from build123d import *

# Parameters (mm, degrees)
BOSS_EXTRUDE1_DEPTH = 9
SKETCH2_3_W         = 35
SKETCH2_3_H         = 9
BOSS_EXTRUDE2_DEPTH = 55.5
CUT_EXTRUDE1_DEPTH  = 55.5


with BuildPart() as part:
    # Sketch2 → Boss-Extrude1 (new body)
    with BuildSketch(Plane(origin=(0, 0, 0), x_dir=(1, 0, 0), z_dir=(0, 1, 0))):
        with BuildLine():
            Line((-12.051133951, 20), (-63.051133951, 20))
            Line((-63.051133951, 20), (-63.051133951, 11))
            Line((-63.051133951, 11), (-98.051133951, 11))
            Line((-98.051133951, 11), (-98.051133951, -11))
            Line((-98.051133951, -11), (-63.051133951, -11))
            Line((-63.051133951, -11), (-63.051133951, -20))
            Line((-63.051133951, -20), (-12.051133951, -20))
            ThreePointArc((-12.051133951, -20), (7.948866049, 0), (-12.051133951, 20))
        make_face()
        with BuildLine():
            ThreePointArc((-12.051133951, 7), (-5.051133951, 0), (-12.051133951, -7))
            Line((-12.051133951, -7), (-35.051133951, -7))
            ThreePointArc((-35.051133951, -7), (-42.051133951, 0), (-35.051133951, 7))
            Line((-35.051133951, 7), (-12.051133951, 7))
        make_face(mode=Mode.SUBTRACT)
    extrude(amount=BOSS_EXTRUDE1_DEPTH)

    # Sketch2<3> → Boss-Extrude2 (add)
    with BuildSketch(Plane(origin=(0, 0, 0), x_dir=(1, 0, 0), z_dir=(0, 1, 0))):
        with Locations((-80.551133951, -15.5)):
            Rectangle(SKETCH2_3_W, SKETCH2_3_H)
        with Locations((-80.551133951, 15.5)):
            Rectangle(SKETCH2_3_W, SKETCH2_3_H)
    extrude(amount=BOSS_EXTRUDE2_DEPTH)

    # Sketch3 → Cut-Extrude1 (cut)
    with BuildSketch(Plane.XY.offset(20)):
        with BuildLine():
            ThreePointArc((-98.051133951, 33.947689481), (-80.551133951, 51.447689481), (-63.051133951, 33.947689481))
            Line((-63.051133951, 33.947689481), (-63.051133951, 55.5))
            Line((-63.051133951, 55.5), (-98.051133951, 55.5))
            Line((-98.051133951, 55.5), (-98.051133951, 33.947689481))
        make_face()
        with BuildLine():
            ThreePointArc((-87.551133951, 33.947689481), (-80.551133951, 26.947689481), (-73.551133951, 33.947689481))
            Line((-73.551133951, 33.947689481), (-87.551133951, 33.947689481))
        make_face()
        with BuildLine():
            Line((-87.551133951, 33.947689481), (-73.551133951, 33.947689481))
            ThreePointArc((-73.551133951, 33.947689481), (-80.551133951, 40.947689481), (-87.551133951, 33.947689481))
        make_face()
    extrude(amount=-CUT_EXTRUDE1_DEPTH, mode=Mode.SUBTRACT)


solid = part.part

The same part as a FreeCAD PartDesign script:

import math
import FreeCAD as App
import Part
import Sketcher
from FreeCAD import Vector
Q = App.Units.Quantity


def add_polygon(sketch, points):
    """Adds a closed chain of lines whose ends are joined by coincident constraints."""
    first, n = sketch.GeometryCount, len(points)
    for a, b in zip(points, points[1:] + points[:1]):
        sketch.addGeometry(Part.LineSegment(App.Vector(*a, 0), App.Vector(*b, 0)), False)
    for i in range(n):
        sketch.addConstraint(Sketcher.Constraint("Coincident", first + i, 2, first + (i + 1) % n, 1))

doc = App.newDocument("Part")
body = doc.addObject("PartDesign::Body", "Body")

# Sketch on XZ plane
sketch1 = body.newObject("Sketcher::SketchObject", "Sketch")
sketch1.AttachmentSupport = (doc.getObject("XZ_Plane"), [""])
sketch1.MapMode = "FlatFace"
sketch1.addGeometry(Part.LineSegment(Vector(-12.051134, -20, 0), Vector(-63.051134, -20, 0)), False)
sketch1.addGeometry(Part.LineSegment(Vector(-63.051134, -20, 0), Vector(-63.051134, -11, 0)), False)
sketch1.addGeometry(Part.LineSegment(Vector(-63.051134, -11, 0), Vector(-98.051134, -11, 0)), False)
sketch1.addGeometry(Part.LineSegment(Vector(-98.051134, -11, 0), Vector(-98.051134, 11, 0)), False)
sketch1.addGeometry(Part.LineSegment(Vector(-98.051134, 11, 0), Vector(-63.051134, 11, 0)), False)
sketch1.addGeometry(Part.LineSegment(Vector(-63.051134, 11, 0), Vector(-63.051134, 20, 0)), False)
sketch1.addGeometry(Part.LineSegment(Vector(-63.051134, 20, 0), Vector(-12.051134, 20, 0)), False)
sketch1.addGeometry(Part.ArcOfCircle(Part.Circle(Vector(-12.051134, 0, 0), Vector(0, 0, 1), 20), math.radians(-90), math.radians(90)), False)
sketch1.addGeometry(Part.LineSegment(Vector(-35.051134, -7, 0), Vector(-12.051134, -7, 0)), False)
sketch1.addGeometry(Part.ArcOfCircle(Part.Circle(Vector(-12.051134, 0, 0), Vector(0, 0, 1), 7), math.radians(-90), math.radians(90)), False)
sketch1.addGeometry(Part.LineSegment(Vector(-12.051134, 7, 0), Vector(-35.051134, 7, 0)), False)
sketch1.addGeometry(Part.ArcOfCircle(Part.Circle(Vector(-35.051134, 0, 0), Vector(0, 0, 1), 7), math.radians(90), math.radians(270)), False)
sketch1.addConstraint(Sketcher.Constraint("Coincident", 0, 2, 1, 1))
sketch1.addConstraint(Sketcher.Constraint("Coincident", 1, 2, 2, 1))
sketch1.addConstraint(Sketcher.Constraint("Coincident", 2, 2, 3, 1))
sketch1.addConstraint(Sketcher.Constraint("Coincident", 3, 2, 4, 1))
sketch1.addConstraint(Sketcher.Constraint("Coincident", 4, 2, 5, 1))
sketch1.addConstraint(Sketcher.Constraint("Coincident", 5, 2, 6, 1))
sketch1.addConstraint(Sketcher.Constraint("Tangent", 6, 2, 7, 2))
sketch1.addConstraint(Sketcher.Constraint("Tangent", 7, 1, 0, 1))
sketch1.addConstraint(Sketcher.Constraint("Tangent", 8, 2, 9, 1))
sketch1.addConstraint(Sketcher.Constraint("Tangent", 9, 2, 10, 1))
sketch1.addConstraint(Sketcher.Constraint("Tangent", 10, 2, 11, 1))
sketch1.addConstraint(Sketcher.Constraint("Tangent", 11, 2, 8, 1))
sketch1.addConstraint(Sketcher.Constraint("Horizontal", 0))
sketch1.addConstraint(Sketcher.Constraint("Vertical", 1))
sketch1.addConstraint(Sketcher.Constraint("Horizontal", 2))
sketch1.addConstraint(Sketcher.Constraint("Vertical", 3))
sketch1.addConstraint(Sketcher.Constraint("Horizontal", 4))
sketch1.addConstraint(Sketcher.Constraint("Vertical", 5))
sketch1.addConstraint(Sketcher.Constraint("Horizontal", 6))
sketch1.addConstraint(Sketcher.Constraint("Horizontal", 8))
sketch1.addConstraint(Sketcher.Constraint("Horizontal", 10))
sketch1.addConstraint(Sketcher.Constraint("Coincident", 9, 3, 7, 3))
sketch1.addConstraint(Sketcher.Constraint("Symmetric", 1, 2, 4, 2, -1))
sketch1.addConstraint(Sketcher.Constraint("PointOnObject", 7, 3, -1))
sketch1.addConstraint(Sketcher.Constraint("Radius", 7, Q("20 mm")))
sketch1.addConstraint(Sketcher.Constraint("Radius", 9, Q("7 mm")))
sketch1.addConstraint(Sketcher.Constraint("DistanceX", 0, 2, 0, 1, Q("51 mm")))
sketch1.addConstraint(Sketcher.Constraint("DistanceX", 2, 2, 2, 1, Q("35 mm")))
sketch1.addConstraint(Sketcher.Constraint("DistanceX", 8, 1, 8, 2, Q("23 mm")))
sketch1.addConstraint(Sketcher.Constraint("DistanceY", 1, 1, 1, 2, Q("9 mm")))
sketch1.addConstraint(Sketcher.Constraint("DistanceX", 7, 3, -1, 1, Q("12.051134 mm")))
pad1 = body.newObject("PartDesign::Pad", "Pad")
pad1.Profile = sketch1
pad1.Length = 9
pad1.Reversed = True

# Sketch on XZ plane
sketch2 = body.newObject("Sketcher::SketchObject", "Sketch001")
sketch2.AttachmentSupport = (doc.getObject("XZ_Plane"), [""])
sketch2.MapMode = "FlatFace"
add_polygon(sketch2, [(-98.051134, 11), (-98.051134, 20), (-63.051134, 20), (-63.051134, 11)])  # lines 0-3
add_polygon(sketch2, [(-98.051134, -20), (-98.051134, -11), (-63.051134, -11), (-63.051134, -20)])  # lines 4-7
sketch2.addConstraint(Sketcher.Constraint("Vertical", 0))
sketch2.addConstraint(Sketcher.Constraint("Horizontal", 1))
sketch2.addConstraint(Sketcher.Constraint("Vertical", 2))
sketch2.addConstraint(Sketcher.Constraint("Horizontal", 3))
sketch2.addConstraint(Sketcher.Constraint("Vertical", 4))
sketch2.addConstraint(Sketcher.Constraint("Horizontal", 5))
sketch2.addConstraint(Sketcher.Constraint("Vertical", 6))
sketch2.addConstraint(Sketcher.Constraint("Horizontal", 7))
sketch2.addConstraint(Sketcher.Constraint("Symmetric", 3, 2, 4, 2, -1))
sketch2.addConstraint(Sketcher.Constraint("Symmetric", 1, 2, 6, 2, -1))
sketch2.addConstraint(Sketcher.Constraint("DistanceX", 1, 1, 1, 2, Q("35 mm")))
sketch2.addConstraint(Sketcher.Constraint("DistanceY", 0, 1, 0, 2, Q("9 mm")))
sketch2.addConstraint(Sketcher.Constraint("DistanceY", -1, 1, 0, 2, Q("20 mm")))
sketch2.addConstraint(Sketcher.Constraint("DistanceX", 0, 2, -1, 1, Q("98.051134 mm")))
pad2 = body.newObject("PartDesign::Pad", "Pad001")
pad2.Profile = sketch2
pad2.Length = 55.5
pad2.Reversed = True

# Sketch on XY plane
sketch3 = body.newObject("Sketcher::SketchObject", "Sketch002")
sketch3.AttachmentSupport = (doc.getObject("XY_Plane"), [""])
sketch3.MapMode = "FlatFace"
sketch3.AttachmentOffset = App.Placement(Vector(0, 0, 20), App.Rotation())
sketch3.addGeometry(Part.ArcOfCircle(Part.Circle(Vector(-80.551134, 33.947689, 0), Vector(0, 0, 1), 17.5), math.radians(0), math.radians(180)), False)
sketch3.addGeometry(Part.LineSegment(Vector(-63.051134, 33.947689, 0), Vector(-63.051134, 55.5, 0)), False)
sketch3.addGeometry(Part.LineSegment(Vector(-63.051134, 55.5, 0), Vector(-98.051134, 55.5, 0)), False)
sketch3.addGeometry(Part.LineSegment(Vector(-98.051134, 55.5, 0), Vector(-98.051134, 33.947689, 0)), False)
sketch3.addGeometry(Part.Circle(Vector(-80.551134, 33.947689, 0), Vector(0, 0, 1), 7), False)
sketch3.addConstraint(Sketcher.Constraint("Tangent", 0, 1, 1, 1))
sketch3.addConstraint(Sketcher.Constraint("Coincident", 1, 2, 2, 1))
sketch3.addConstraint(Sketcher.Constraint("Coincident", 2, 2, 3, 1))
sketch3.addConstraint(Sketcher.Constraint("Tangent", 3, 2, 0, 2))
sketch3.addConstraint(Sketcher.Constraint("Vertical", 1))
sketch3.addConstraint(Sketcher.Constraint("Horizontal", 2))
sketch3.addConstraint(Sketcher.Constraint("Vertical", 3))
sketch3.addConstraint(Sketcher.Constraint("Coincident", 4, 3, 0, 3))
sketch3.addConstraint(Sketcher.Constraint("Diameter", 4, Q("14 mm")))
sketch3.addConstraint(Sketcher.Constraint("Radius", 0, Q("17.5 mm")))
sketch3.addConstraint(Sketcher.Constraint("DistanceY", -1, 1, 1, 2, Q("55.5 mm")))
sketch3.addConstraint(Sketcher.Constraint("DistanceY", 1, 1, 1, 2, Q("21.552311 mm")))
sketch3.addConstraint(Sketcher.Constraint("DistanceX", 0, 3, -1, 1, Q("80.551134 mm")))
pocket1 = body.newObject("PartDesign::Pocket", "Pocket")
pocket1.Profile = sketch3
pocket1.Length = 55.5

doc.recompute()
